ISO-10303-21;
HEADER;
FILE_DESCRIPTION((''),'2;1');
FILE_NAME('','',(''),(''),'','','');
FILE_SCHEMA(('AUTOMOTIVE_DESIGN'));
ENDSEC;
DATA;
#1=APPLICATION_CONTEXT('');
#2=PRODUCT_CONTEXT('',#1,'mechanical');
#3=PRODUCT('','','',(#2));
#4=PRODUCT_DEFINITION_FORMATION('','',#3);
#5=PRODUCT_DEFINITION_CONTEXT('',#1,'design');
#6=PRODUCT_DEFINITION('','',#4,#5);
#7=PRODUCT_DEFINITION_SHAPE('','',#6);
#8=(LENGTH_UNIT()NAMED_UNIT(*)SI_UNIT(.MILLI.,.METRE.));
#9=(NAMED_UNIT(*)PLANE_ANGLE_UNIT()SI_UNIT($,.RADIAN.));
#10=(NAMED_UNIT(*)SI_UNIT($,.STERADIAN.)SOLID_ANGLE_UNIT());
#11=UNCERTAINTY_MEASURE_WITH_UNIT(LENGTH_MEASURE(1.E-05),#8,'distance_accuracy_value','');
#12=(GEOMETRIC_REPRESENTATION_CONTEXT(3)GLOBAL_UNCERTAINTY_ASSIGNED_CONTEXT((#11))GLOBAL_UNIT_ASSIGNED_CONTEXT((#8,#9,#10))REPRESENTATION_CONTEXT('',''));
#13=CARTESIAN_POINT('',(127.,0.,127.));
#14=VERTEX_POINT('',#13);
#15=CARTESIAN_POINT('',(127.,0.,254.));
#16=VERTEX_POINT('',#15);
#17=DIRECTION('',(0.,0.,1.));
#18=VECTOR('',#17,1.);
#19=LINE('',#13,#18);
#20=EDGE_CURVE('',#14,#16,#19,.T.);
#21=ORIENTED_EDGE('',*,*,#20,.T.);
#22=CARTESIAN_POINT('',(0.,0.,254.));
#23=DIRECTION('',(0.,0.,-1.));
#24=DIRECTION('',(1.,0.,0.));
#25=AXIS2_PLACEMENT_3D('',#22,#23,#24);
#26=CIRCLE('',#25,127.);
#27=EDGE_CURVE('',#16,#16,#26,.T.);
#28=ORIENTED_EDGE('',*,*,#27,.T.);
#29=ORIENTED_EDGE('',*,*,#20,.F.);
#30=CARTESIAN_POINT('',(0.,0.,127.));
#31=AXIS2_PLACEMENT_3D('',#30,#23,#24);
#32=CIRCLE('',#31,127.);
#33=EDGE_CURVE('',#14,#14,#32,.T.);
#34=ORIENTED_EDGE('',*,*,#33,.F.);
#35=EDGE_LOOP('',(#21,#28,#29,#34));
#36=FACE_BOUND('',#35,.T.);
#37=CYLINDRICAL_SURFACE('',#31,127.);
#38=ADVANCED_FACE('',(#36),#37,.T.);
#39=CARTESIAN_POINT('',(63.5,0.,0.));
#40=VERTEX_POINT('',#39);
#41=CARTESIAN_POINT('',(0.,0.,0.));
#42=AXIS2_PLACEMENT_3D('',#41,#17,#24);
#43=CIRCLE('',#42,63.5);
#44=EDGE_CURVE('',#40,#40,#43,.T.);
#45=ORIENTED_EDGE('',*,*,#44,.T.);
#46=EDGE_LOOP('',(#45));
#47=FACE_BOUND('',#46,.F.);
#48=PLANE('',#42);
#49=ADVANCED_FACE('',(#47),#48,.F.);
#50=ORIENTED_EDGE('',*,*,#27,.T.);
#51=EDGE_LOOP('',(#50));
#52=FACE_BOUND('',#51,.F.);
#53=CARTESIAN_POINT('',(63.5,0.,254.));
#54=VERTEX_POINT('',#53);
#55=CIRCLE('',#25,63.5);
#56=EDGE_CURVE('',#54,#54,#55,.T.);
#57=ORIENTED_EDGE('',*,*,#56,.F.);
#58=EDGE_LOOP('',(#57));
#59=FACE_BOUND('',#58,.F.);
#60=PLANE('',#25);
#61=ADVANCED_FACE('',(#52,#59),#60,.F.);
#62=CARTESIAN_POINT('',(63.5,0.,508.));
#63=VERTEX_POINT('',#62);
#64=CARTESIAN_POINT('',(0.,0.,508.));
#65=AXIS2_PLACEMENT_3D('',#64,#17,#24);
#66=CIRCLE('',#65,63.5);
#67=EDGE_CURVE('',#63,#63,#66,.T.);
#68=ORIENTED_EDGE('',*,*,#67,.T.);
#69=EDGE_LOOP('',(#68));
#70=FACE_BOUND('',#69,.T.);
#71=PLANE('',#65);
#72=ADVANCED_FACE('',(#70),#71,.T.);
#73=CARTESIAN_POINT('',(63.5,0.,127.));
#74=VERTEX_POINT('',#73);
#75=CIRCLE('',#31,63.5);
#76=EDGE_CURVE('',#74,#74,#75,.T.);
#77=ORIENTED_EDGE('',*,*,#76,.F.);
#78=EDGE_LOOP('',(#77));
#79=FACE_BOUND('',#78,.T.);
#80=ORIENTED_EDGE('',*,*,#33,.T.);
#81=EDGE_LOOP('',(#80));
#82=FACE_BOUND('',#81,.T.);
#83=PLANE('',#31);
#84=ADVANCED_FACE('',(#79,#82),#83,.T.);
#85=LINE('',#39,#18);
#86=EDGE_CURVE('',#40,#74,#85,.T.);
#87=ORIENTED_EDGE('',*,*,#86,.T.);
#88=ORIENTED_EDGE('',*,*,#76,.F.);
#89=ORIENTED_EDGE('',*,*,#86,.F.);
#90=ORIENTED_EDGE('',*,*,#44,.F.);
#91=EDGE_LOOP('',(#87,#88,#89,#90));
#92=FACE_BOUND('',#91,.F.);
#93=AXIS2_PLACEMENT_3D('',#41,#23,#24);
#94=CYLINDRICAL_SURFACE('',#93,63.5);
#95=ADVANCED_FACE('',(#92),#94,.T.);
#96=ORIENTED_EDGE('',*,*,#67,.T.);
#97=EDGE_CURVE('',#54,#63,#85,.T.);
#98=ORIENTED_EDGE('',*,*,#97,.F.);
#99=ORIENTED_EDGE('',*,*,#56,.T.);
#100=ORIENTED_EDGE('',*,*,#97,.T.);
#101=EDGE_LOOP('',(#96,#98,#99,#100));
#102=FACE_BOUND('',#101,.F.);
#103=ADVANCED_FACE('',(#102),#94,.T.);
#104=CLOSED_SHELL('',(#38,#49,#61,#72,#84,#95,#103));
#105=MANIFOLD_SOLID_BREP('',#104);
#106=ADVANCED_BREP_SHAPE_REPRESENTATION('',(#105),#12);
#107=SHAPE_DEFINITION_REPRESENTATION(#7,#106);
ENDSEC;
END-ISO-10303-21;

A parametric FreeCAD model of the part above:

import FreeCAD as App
import Part
import Sketcher
from FreeCAD import Vector
Q = App.Units.Quantity

doc = App.newDocument("Part")
params = doc.addObject("Spreadsheet::Sheet", "Params")
for row, (alias, value) in enumerate([
    ("sketch1_diameter", "5 in"),
    ("pad1_length", "20 in"),
    ("sketch2_diameter", "10 in"),
    ("pad2_length", "5 in"),
], start=1):
    params.set(f"A{row}", alias)
    params.set(f"B{row}", "=" + value)
    params.setAlias(f"B{row}", alias)

body = doc.addObject("PartDesign::Body", "Body")

sketch1 = doc.addObject("Sketcher::SketchObject", "Sketch")
body.addObject(sketch1)
sketch1.AttachmentSupport = (doc.XY_Plane, [""])
sketch1.MapMode = "FlatFace"
sketch1.addGeometry(Part.Circle(Vector(0, 0, 0), Vector(0, 0, 1), 64), False)
sketch1.addConstraint(Sketcher.Constraint("Coincident", 0, 3, -1, 1))
sketch1.addConstraint(Sketcher.Constraint("Diameter", 0, Q("5 in")))
sketch1.setExpression("Constraints[1]", "Params.sketch1_diameter")
pad1 = doc.addObject("PartDesign::Pad", "Pad")
body.addObject(pad1)
pad1.Profile = sketch1
pad1.setExpression("Length", "Params.pad1_length")

sketch2 = doc.addObject("Sketcher::SketchObject", "Sketch001")
body.addObject(sketch2)
sketch2.AttachmentSupport = (doc.XY_Plane, [""])
sketch2.MapMode = "FlatFace"
sketch2.AttachmentOffset = App.Placement(Vector(0, 0, 5 * 25.4), App.Rotation())
sketch2.addGeometry(Part.Circle(Vector(0, 0, 0), Vector(0, 0, 1), 127), False)
sketch2.addConstraint(Sketcher.Constraint("Coincident", 0, 3, -1, 1))
sketch2.addConstraint(Sketcher.Constraint("Diameter", 0, Q("10 in")))
sketch2.setExpression("Constraints[1]", "Params.sketch2_diameter")
pad2 = doc.addObject("PartDesign::Pad", "Pad001")
body.addObject(pad2)
pad2.Profile = sketch2
pad2.setExpression("Length", "Params.pad2_length")

doc.recompute()
